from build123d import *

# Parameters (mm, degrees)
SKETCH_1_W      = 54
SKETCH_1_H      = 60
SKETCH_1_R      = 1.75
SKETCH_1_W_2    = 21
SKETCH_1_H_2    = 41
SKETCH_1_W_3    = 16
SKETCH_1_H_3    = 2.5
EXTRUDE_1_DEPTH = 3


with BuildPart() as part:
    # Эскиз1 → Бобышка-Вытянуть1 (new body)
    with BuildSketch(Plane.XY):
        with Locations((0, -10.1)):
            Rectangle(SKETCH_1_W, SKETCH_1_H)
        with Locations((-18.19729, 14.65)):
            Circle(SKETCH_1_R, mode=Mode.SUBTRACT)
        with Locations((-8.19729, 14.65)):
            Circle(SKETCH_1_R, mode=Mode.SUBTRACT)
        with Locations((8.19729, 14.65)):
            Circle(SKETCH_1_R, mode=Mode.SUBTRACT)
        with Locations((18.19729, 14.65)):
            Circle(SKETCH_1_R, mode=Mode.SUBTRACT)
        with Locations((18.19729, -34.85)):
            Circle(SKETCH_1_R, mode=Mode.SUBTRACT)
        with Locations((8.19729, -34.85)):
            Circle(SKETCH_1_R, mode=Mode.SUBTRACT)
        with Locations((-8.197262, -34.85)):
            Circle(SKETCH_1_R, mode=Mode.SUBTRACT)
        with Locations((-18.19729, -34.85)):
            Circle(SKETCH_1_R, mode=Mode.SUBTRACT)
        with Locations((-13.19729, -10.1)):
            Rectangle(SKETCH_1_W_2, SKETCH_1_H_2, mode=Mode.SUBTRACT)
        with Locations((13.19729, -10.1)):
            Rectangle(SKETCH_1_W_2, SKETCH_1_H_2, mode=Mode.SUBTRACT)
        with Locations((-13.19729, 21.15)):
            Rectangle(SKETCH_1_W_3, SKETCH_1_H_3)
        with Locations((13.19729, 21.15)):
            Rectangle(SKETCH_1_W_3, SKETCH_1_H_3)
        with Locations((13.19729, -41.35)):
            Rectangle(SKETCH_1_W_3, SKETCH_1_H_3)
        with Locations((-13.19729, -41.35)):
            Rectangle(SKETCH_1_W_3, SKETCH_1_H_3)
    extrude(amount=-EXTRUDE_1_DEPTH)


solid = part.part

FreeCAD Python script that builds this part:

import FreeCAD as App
import Part
import Sketcher

V = App.Vector

doc = App.newDocument("Part")
body = doc.addObject("PartDesign::Body", "Body")

# Sketch on XY plane
sketch1 = body.newObject("Sketcher::SketchObject", "Sketch")
sketch1.AttachmentSupport = (doc.getObject("XY_Plane"), [""])
sketch1.MapMode = "FlatFace"
sketch1.addGeometry(Part.LineSegment(V(-27, 19.9, 0), V(-27, -40.1, 0)), False)
sketch1.addGeometry(Part.LineSegment(V(-27, -40.1, 0), V(-21.2, -40.1, 0)), False)
sketch1.addGeometry(Part.LineSegment(V(-21.2, -40.1, 0), V(-21.2, -42.6, 0)), False)
sketch1.addGeometry(Part.LineSegment(V(-21.2, -42.6, 0), V(-5.2, -42.6, 0)), False)
sketch1.addGeometry(Part.LineSegment(V(-5.2, -42.6, 0), V(-5.2, -40.1, 0)), False)
sketch1.addGeometry(Part.LineSegment(V(-5.2, -40.1, 0), V(5.2, -40.1, 0)), False)
sketch1.addGeometry(Part.LineSegment(V(5.2, -40.1, 0), V(5.2, -42.6, 0)), False)
sketch1.addGeometry(Part.LineSegment(V(5.2, -42.6, 0), V(21.2, -42.6, 0)), False)
sketch1.addGeometry(Part.LineSegment(V(21.2, -42.6, 0), V(21.2, -40.1, 0)), False)
sketch1.addGeometry(Part.LineSegment(V(21.2, -40.1, 0), V(27, -40.1, 0)), False)
sketch1.addGeometry(Part.LineSegment(V(27, -40.1, 0), V(27, 19.9, 0)), False)
sketch1.addGeometry(Part.LineSegment(V(27, 19.9, 0), V(21.2, 19.9, 0)), False)
sketch1.addGeometry(Part.LineSegment(V(21.2, 19.9, 0), V(21.2, 22.4, 0)), False)
sketch1.addGeometry(Part.LineSegment(V(21.2, 22.4, 0), V(5.2, 22.4, 0)), False)
sketch1.addGeometry(Part.LineSegment(V(5.2, 22.4, 0), V(5.2, 19.9, 0)), False)
sketch1.addGeometry(Part.LineSegment(V(5.2, 19.9, 0), V(-5.2, 19.9, 0)), False)
sketch1.addGeometry(Part.LineSegment(V(-5.2, 19.9, 0), V(-5.2, 22.4, 0)), False)
sketch1.addGeometry(Part.LineSegment(V(-5.2, 22.4, 0), V(-21.2, 22.4, 0)), False)
sketch1.addGeometry(Part.LineSegment(V(-21.2, 22.4, 0), V(-21.2, 19.9, 0)), False)
sketch1.addGeometry(Part.LineSegment(V(-21.2, 19.9, 0), V(-27, 19.9, 0)), False)
sketch1.addGeometry(Part.Circle(V(-18.2, -34.9, 0), V(0, 0, 1), 1.8), False)
sketch1.addGeometry(Part.Circle(V(-8.2, -34.9, 0), V(0, 0, 1), 1.8), False)
sketch1.addGeometry(Part.Circle(V(8.2, -34.9, 0), V(0, 0, 1), 1.8), False)
sketch1.addGeometry(Part.Circle(V(18.2, -34.9, 0), V(0, 0, 1), 1.8), False)
sketch1.addGeometry(Part.LineSegment(V(-2.7, -30.6, 0), V(-23.7, -30.6, 0)), False)
sketch1.addGeometry(Part.LineSegment(V(-23.7, -30.6, 0), V(-23.7, 10.4, 0)), False)
sketch1.addGeometry(Part.LineSegment(V(-23.7, 10.4, 0), V(-2.7, 10.4, 0)), False)
sketch1.addGeometry(Part.LineSegment(V(-2.7, 10.4, 0), V(-2.7, -30.6, 0)), False)
sketch1.addGeometry(Part.Circle(V(-18.2, 14.7, 0), V(0, 0, 1), 1.8), False)
sketch1.addGeometry(Part.Circle(V(-8.2, 14.7, 0), V(0, 0, 1), 1.8), False)
sketch1.addGeometry(Part.LineSegment(V(23.7, -30.6, 0), V(2.7, -30.6, 0)), False)
sketch1.addGeometry(Part.LineSegment(V(2.7, -30.6, 0), V(2.7, 10.4, 0)), False)
sketch1.addGeometry(Part.LineSegment(V(2.7, 10.4, 0), V(23.7, 10.4, 0)), False)
sketch1.addGeometry(Part.LineSegment(V(23.7, 10.4, 0), V(23.7, -30.6, 0)), False)
sketch1.addGeometry(Part.Circle(V(8.2, 14.7, 0), V(0, 0, 1), 1.8), False)
sketch1.addGeometry(Part.Circle(V(18.2, 14.7, 0), V(0, 0, 1), 1.8), False)
sketch1.addConstraint(Sketcher.Constraint("Coincident", 0, 2, 1, 1))
sketch1.addConstraint(Sketcher.Constraint("Coincident", 1, 2, 2, 1))
sketch1.addConstraint(Sketcher.Constraint("Coincident", 2, 2, 3, 1))
sketch1.addConstraint(Sketcher.Constraint("Coincident", 3, 2, 4, 1))
sketch1.addConstraint(Sketcher.Constraint("Coincident", 4, 2, 5, 1))
sketch1.addConstraint(Sketcher.Constraint("Coincident", 5, 2, 6, 1))
sketch1.addConstraint(Sketcher.Constraint("Coincident", 6, 2, 7, 1))
sketch1.addConstraint(Sketcher.Constraint("Coincident", 7, 2, 8, 1))
sketch1.addConstraint(Sketcher.Constraint("Coincident", 8, 2, 9, 1))
sketch1.addConstraint(Sketcher.Constraint("Coincident", 9, 2, 10, 1))
sketch1.addConstraint(Sketcher.Constraint("Coincident", 10, 2, 11, 1))
sketch1.addConstraint(Sketcher.Constraint("Coincident", 11, 2, 12, 1))
sketch1.addConstraint(Sketcher.Constraint("Coincident", 12, 2, 13, 1))
sketch1.addConstraint(Sketcher.Constraint("Coincident", 13, 2, 14, 1))
sketch1.addConstraint(Sketcher.Constraint("Coincident", 14, 2, 15, 1))
sketch1.addConstraint(Sketcher.Constraint("Coincident", 15, 2, 16, 1))
sketch1.addConstraint(Sketcher.Constraint("Coincident", 16, 2, 17, 1))
sketch1.addConstraint(Sketcher.Constraint("Coincident", 17, 2, 18, 1))
sketch1.addConstraint(Sketcher.Constraint("Coincident", 18, 2, 19, 1))
sketch1.addConstraint(Sketcher.Constraint("Coincident", 19, 2, 0, 1))
sketch1.addConstraint(Sketcher.Constraint("Coincident", 24, 2, 25, 1))
sketch1.addConstraint(Sketcher.Constraint("Coincident", 25, 2, 26, 1))
sketch1.addConstraint(Sketcher.Constraint("Coincident", 26, 2, 27, 1))
sketch1.addConstraint(Sketcher.Constraint("Coincident", 27, 2, 24, 1))
sketch1.addConstraint(Sketcher.Constraint("Coincident", 30, 2, 31, 1))
sketch1.addConstraint(Sketcher.Constraint("Coincident", 31, 2, 32, 1))
sketch1.addConstraint(Sketcher.Constraint("Coincident", 32, 2, 33, 1))
sketch1.addConstraint(Sketcher.Constraint("Coincident", 33, 2, 30, 1))
sketch1.addConstraint(Sketcher.Constraint("Vertical", 0))
sketch1.addConstraint(Sketcher.Constraint("Horizontal", 1))
sketch1.addConstraint(Sketcher.Constraint("Vertical", 2))
sketch1.addConstraint(Sketcher.Constraint("Horizontal", 3))
sketch1.addConstraint(Sketcher.Constraint("Vertical", 4))
sketch1.addConstraint(Sketcher.Constraint("Horizontal", 5))
sketch1.addConstraint(Sketcher.Constraint("Vertical", 6))
sketch1.addConstraint(Sketcher.Constraint("Horizontal", 7))
sketch1.addConstraint(Sketcher.Constraint("Vertical", 8))
sketch1.addConstraint(Sketcher.Constraint("Horizontal", 9))
sketch1.addConstraint(Sketcher.Constraint("Vertical", 10))
sketch1.addConstraint(Sketcher.Constraint("Horizontal", 11))
sketch1.addConstraint(Sketcher.Constraint("Vertical", 12))
sketch1.addConstraint(Sketcher.Constraint("Horizontal", 13))
sketch1.addConstraint(Sketcher.Constraint("Vertical", 14))
sketch1.addConstraint(Sketcher.Constraint("Horizontal", 15))
sketch1.addConstraint(Sketcher.Constraint("Vertical", 16))
sketch1.addConstraint(Sketcher.Constraint("Horizontal", 17))
sketch1.addConstraint(Sketcher.Constraint("Vertical", 18))
sketch1.addConstraint(Sketcher.Constraint("Horizontal", 19))
sketch1.addConstraint(Sketcher.Constraint("Horizontal", 24))
sketch1.addConstraint(Sketcher.Constraint("Vertical", 25))
sketch1.addConstraint(Sketcher.Constraint("Horizontal", 26))
sketch1.addConstraint(Sketcher.Constraint("Vertical", 27))
sketch1.addConstraint(Sketcher.Constraint("Horizontal", 30))
sketch1.addConstraint(Sketcher.Constraint("Vertical", 31))
sketch1.addConstraint(Sketcher.Constraint("Horizontal", 32))
sketch1.addConstraint(Sketcher.Constraint("Vertical", 33))
sketch1.addConstraint(Sketcher.Constraint("Equal", 20, 21))
sketch1.addConstraint(Sketcher.Constraint("Equal", 21, 22))
sketch1.addConstraint(Sketcher.Constraint("Equal", 22, 23))
sketch1.addConstraint(Sketcher.Constraint("Equal", 23, 28))
sketch1.addConstraint(Sketcher.Constraint("Equal", 28, 29))
sketch1.addConstraint(Sketcher.Constraint("Equal", 29, 34))
sketch1.addConstraint(Sketcher.Constraint("Equal", 34, 35))
sketch1.addConstraint(Sketcher.Constraint("Symmetric", 20, 3, 23, 3, -2))
sketch1.addConstraint(Sketcher.Constraint("Symmetric", 29, 3, 34, 3, -2))
sketch1.addConstraint(Sketcher.Constraint("Symmetric", 28, 3, 35, 3, -2))
sketch1.addConstraint(Sketcher.Constraint("Symmetric", 3, 2, 6, 2, -2))
sketch1.addConstraint(Sketcher.Constraint("Symmetric", 1, 2, 8, 2, -2))
sketch1.addConstraint(Sketcher.Constraint("Symmetric", 13, 2, 16, 2, -2))
sketch1.addConstraint(Sketcher.Constraint("Symmetric", 11, 2, 18, 2, -2))
sketch1.addConstraint(Sketcher.Constraint("Symmetric", 27, 2, 30, 2, -2))
sketch1.addConstraint(Sketcher.Constraint("Symmetric", 25, 2, 32, 2, -2))
sketch1.addConstraint(Sketcher.Constraint("Horizontal", 20, 3, 21, 3))
sketch1.addConstraint(Sketcher.Constraint("Horizontal", 21, 3, 22, 3))
sketch1.addConstraint(Sketcher.Constraint("Horizontal", 28, 3, 29, 3))
sketch1.addConstraint(Sketcher.Constraint("Horizontal", 1, 2, 4, 2))
sketch1.addConstraint(Sketcher.Constraint("Horizontal", 11, 2, 14, 2))
sketch1.addConstraint(Sketcher.Constraint("Vertical", 20, 3, 28, 3))
sketch1.addConstraint(Sketcher.Constraint("Vertical", 22, 3, 34, 3))
sketch1.addConstraint(Sketcher.Constraint("Vertical", 8, 2, 11, 2))
sketch1.addConstraint(Sketcher.Constraint("Vertical", 6, 2, 13, 2))
sketch1.addConstraint(Sketcher.Constraint("Equal", 1, 9))
sketch1.addConstraint(Sketcher.Constraint("Equal", 8, 12))
sketch1.addConstraint(Sketcher.Constraint("Diameter", 20, 3.5))
sketch1.addConstraint(Sketcher.Constraint("DistanceX", 3, 1, 3, 2, 16.0))
sketch1.addConstraint(Sketcher.Constraint("DistanceX", 24, 2, 24, 1, 21.0))
sketch1.addConstraint(Sketcher.Constraint("DistanceY", 0, 2, 0, 1, 60.0))
sketch1.addConstraint(Sketcher.Constraint("DistanceY", 25, 1, 25, 2, 41.0))
sketch1.addConstraint(Sketcher.Constraint("DistanceY", 2, 2, 2, 1, 2.5))
sketch1.addConstraint(Sketcher.Constraint("DistanceX", 0, 2, -1, 1, 27.0))
sketch1.addConstraint(Sketcher.Constraint("DistanceX", 22, 3, 23, 3, 10.0))
sketch1.addConstraint(Sketcher.Constraint("DistanceX", 1, 2, 20, 3, 3.0))
sketch1.addConstraint(Sketcher.Constraint("DistanceY", 2, 2, 24, 2, 12.0))
sketch1.addConstraint(Sketcher.Constraint("DistanceY", 0, 2, -1, 1, 40.1))
sketch1.addConstraint(Sketcher.Constraint("DistanceY", 20, 3, 28, 3, 49.5))
sketch1.addConstraint(Sketcher.Constraint("DistanceX", 24, 2, 20, 3, 5.5))
sketch1.addConstraint(Sketcher.Constraint("DistanceY", 20, 3, -1, 1, 34.85))
sketch1.addConstraint(Sketcher.Constraint("DistanceX", 1, 1, 1, 2, 5.80271))
sketch1.addConstraint(Sketcher.Constraint("DistanceX", 21, 3, 23, 3, 26.394552))
pad1 = body.newObject("PartDesign::Pad", "Pad")
pad1.Profile = sketch1
pad1.Length = 3
pad1.Reversed = True

doc.recompute()
